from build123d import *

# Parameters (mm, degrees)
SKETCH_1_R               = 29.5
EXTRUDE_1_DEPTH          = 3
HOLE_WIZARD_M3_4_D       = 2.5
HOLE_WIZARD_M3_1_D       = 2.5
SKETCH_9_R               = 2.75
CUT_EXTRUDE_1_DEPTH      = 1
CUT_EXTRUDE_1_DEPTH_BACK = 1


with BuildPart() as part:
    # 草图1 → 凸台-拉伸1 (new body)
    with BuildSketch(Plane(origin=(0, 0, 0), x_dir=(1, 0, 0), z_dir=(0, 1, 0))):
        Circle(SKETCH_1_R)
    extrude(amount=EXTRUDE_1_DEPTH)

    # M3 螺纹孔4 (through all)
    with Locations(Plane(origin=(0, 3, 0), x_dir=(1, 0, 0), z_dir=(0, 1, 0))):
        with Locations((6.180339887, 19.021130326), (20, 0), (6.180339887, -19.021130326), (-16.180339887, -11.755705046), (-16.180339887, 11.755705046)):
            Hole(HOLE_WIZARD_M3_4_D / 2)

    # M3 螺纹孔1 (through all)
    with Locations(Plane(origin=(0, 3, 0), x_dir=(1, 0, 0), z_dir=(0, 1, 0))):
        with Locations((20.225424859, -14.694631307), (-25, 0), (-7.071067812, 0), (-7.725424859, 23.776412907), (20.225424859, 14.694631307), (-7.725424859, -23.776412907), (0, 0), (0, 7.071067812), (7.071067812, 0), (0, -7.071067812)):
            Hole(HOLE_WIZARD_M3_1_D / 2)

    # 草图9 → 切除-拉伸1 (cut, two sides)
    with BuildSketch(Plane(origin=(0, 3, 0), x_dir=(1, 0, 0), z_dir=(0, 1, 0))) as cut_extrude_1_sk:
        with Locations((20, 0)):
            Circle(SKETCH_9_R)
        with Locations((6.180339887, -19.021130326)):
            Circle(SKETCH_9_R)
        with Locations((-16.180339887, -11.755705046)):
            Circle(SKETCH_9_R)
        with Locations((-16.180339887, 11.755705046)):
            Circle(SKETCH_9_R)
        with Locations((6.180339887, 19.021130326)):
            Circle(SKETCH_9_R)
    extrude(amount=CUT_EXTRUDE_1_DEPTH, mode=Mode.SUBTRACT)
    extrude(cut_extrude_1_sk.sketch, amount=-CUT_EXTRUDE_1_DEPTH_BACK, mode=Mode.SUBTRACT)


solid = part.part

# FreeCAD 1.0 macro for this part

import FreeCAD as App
import Part
import Sketcher

doc = App.newDocument("Part")
body = doc.addObject("PartDesign::Body", "Body")

# Sketch on XZ plane
sketch1 = doc.addObject("Sketcher::SketchObject", "Sketch")
body.addObject(sketch1)
sketch1.AttachmentSupport = (doc.XZ_Plane, [""])
sketch1.MapMode = "FlatFace"
sketch1.addGeometry(Part.Circle(App.Vector(0, 0, 0), App.Vector(0, 0, 1), 30), False)
sketch1.addConstraint([
    Sketcher.Constraint("Coincident", 0, 3, -1, 1),
    Sketcher.Constraint("Diameter", 0, 59.0),
])
pad1 = doc.addObject("PartDesign::Pad", "Pad")
body.addObject(pad1)
pad1.Profile = sketch1
pad1.Length = 3
pad1.Reversed = True

# Sketch on XZ plane
sketch2 = doc.addObject("Sketcher::SketchObject", "Sketch001")
body.addObject(sketch2)
sketch2.AttachmentSupport = (doc.XZ_Plane, [""])
sketch2.MapMode = "FlatFace"
sketch2.AttachmentOffset = App.Placement(App.Vector(0, 0, -3), App.Rotation())
sketch2.addGeometry([
    Part.Circle(App.Vector(6.2, -19, 0), App.Vector(0, 0, 1), 1.2),  # 0
    Part.Circle(App.Vector(20, 0, 0), App.Vector(0, 0, 1), 1.2),  # 1
    Part.Circle(App.Vector(6.2, 19, 0), App.Vector(0, 0, 1), 1.2),  # 2
    Part.Circle(App.Vector(-16.2, 11.8, 0), App.Vector(0, 0, 1), 1.2),  # 3
    Part.Circle(App.Vector(-16.2, -11.8, 0), App.Vector(0, 0, 1), 1.2),  # 4
], False)
sketch2.addConstraint([
    Sketcher.Constraint("Equal", 0, 1),
    Sketcher.Constraint("Equal", 1, 2),
    Sketcher.Constraint("Equal", 2, 3),
    Sketcher.Constraint("Equal", 3, 4),
    Sketcher.Constraint("Symmetric", 0, 3, 2, 3, -1),
    Sketcher.Constraint("Symmetric", 3, 3, 4, 3, -1),
    Sketcher.Constraint("PointOnObject", 1, 3, -1),
    Sketcher.Constraint("Diameter", 0, 2.5),
    Sketcher.Constraint("DistanceX", -1, 1, 1, 3, 20.0),
    Sketcher.Constraint("DistanceX", -1, 1, 0, 3, 6.18034),
    Sketcher.Constraint("DistanceY", 0, 3, -1, 1, 19.02113),
    Sketcher.Constraint("DistanceX", 3, 3, -1, 1, 16.18034),
    Sketcher.Constraint("DistanceY", 4, 3, 3, 3, 23.51141),
])
doc.recompute()
hole = doc.addObject("PartDesign::Hole", "Hole")
body.addObject(hole)
hole.Profile = sketch2
hole.ThreadType = "None"
hole.Diameter = 2.5
hole.DepthType = "ThroughAll"
hole.Reversed = True

# Sketch on XZ plane
sketch3 = doc.addObject("Sketcher::SketchObject", "Sketch002")
body.addObject(sketch3)
sketch3.AttachmentSupport = (doc.XZ_Plane, [""])
sketch3.MapMode = "FlatFace"
sketch3.AttachmentOffset = App.Placement(App.Vector(0, 0, -3), App.Rotation())
sketch3.addGeometry([
    Part.Circle(App.Vector(20.2, 14.7, 0), App.Vector(0, 0, 1), 1.2),  # 0
    Part.Circle(App.Vector(-25, 0, 0), App.Vector(0, 0, 1), 1.2),  # 1
    Part.Circle(App.Vector(-7.1, 0, 0), App.Vector(0, 0, 1), 1.2),  # 2
    Part.Circle(App.Vector(-7.7, -23.8, 0), App.Vector(0, 0, 1), 1.2),  # 3
    Part.Circle(App.Vector(20.2, -14.7, 0), App.Vector(0, 0, 1), 1.2),  # 4
    Part.Circle(App.Vector(-7.7, 23.8, 0), App.Vector(0, 0, 1), 1.2),  # 5
    Part.Circle(App.Vector(0, 0, 0), App.Vector(0, 0, 1), 1.2),  # 6
    Part.Circle(App.Vector(0, -7.1, 0), App.Vector(0, 0, 1), 1.2),  # 7
    Part.Circle(App.Vector(7.1, 0, 0), App.Vector(0, 0, 1), 1.2),  # 8
    Part.Circle(App.Vector(0, 7.1, 0), App.Vector(0, 0, 1), 1.2),  # 9
], False)
sketch3.addConstraint([
    Sketcher.Constraint("Coincident", 6, 3, -1, 1),
    Sketcher.Constraint("Equal", 0, 1),
    Sketcher.Constraint("Equal", 1, 2),
    Sketcher.Constraint("Equal", 2, 3),
    Sketcher.Constraint("Equal", 3, 4),
    Sketcher.Constraint("Equal", 4, 5),
    Sketcher.Constraint("Equal", 5, 6),
    Sketcher.Constraint("Equal", 6, 7),
    Sketcher.Constraint("Equal", 7, 8),
    Sketcher.Constraint("Equal", 8, 9),
    Sketcher.Constraint("Symmetric", 2, 3, 8, 3, -1, 1),
    Sketcher.Constraint("Symmetric", 7, 3, 9, 3, -1, 1),
    Sketcher.Constraint("Symmetric", 0, 3, 4, 3, -1),
    Sketcher.Constraint("Symmetric", 3, 3, 5, 3, -1),
    Sketcher.Constraint("PointOnObject", 1, 3, -1),
    Sketcher.Constraint("PointOnObject", 2, 3, -1),
    Sketcher.Constraint("PointOnObject", 7, 3, -2),
    Sketcher.Constraint("Diameter", 0, 2.5),
    Sketcher.Constraint("DistanceX", 1, 3, -1, 1, 25.0),
    Sketcher.Constraint("DistanceY", -1, 1, 0, 3, 14.694631),
    Sketcher.Constraint("DistanceX", 3, 3, 0, 3, 27.95085),
    Sketcher.Constraint("DistanceY", 3, 3, 4, 3, 9.081782),
    Sketcher.Constraint("DistanceX", -1, 1, 0, 3, 20.225425),
    Sketcher.Constraint("DistanceX", 2, 3, -1, 1, 7.071068),
    Sketcher.Constraint("DistanceY", 7, 3, -1, 1, 7.071068),
])
doc.recompute()
hole2 = doc.addObject("PartDesign::Hole", "Hole001")
body.addObject(hole2)
hole2.Profile = sketch3
hole2.ThreadType = "None"
hole2.Diameter = 2.5
hole2.DepthType = "ThroughAll"
hole2.Reversed = True

# Sketch on XZ plane
sketch4 = doc.addObject("Sketcher::SketchObject", "Sketch003")
body.addObject(sketch4)
sketch4.AttachmentSupport = (doc.XZ_Plane, [""])
sketch4.MapMode = "FlatFace"
sketch4.AttachmentOffset = App.Placement(App.Vector(0, 0, -3), App.Rotation())
sketch4.addGeometry([
    Part.Circle(App.Vector(20, 0, 0), App.Vector(0, 0, 1), 2.8),  # 0
    Part.Circle(App.Vector(6.2, 19, 0), App.Vector(0, 0, 1), 2.8),  # 1
    Part.Circle(App.Vector(-16.2, 11.8, 0), App.Vector(0, 0, 1), 2.8),  # 2
    Part.Circle(App.Vector(-16.2, -11.8, 0), App.Vector(0, 0, 1), 2.8),  # 3
    Part.Circle(App.Vector(6.2, -19, 0), App.Vector(0, 0, 1), 2.8),  # 4
], False)
sketch4.addConstraint([
    Sketcher.Constraint("Equal", 0, 1),
    Sketcher.Constraint("Equal", 1, 2),
    Sketcher.Constraint("Equal", 2, 3),
    Sketcher.Constraint("Equal", 3, 4),
    Sketcher.Constraint("Symmetric", 2, 3, 3, 3, -1),
    Sketcher.Constraint("Symmetric", 1, 3, 4, 3, -1),
    Sketcher.Constraint("PointOnObject", 0, 3, -1),
    Sketcher.Constraint("Diameter", 0, 5.5),
    Sketcher.Constraint("DistanceX", -1, 1, 0, 3, 20.0),
    Sketcher.Constraint("DistanceX", -1, 1, 1, 3, 6.18034),
    Sketcher.Constraint("DistanceY", -1, 1, 1, 3, 19.02113),
    Sketcher.Constraint("DistanceX", 2, 3, -1, 1, 16.18034),
    Sketcher.Constraint("DistanceY", 3, 3, 2, 3, 23.51141),
])
pocket1 = doc.addObject("PartDesign::Pocket", "Pocket")
body.addObject(pocket1)
pocket1.Profile = sketch4
pocket1.Type = "TwoLengths"
pocket1.Length = 1
pocket1.Length2 = 1

doc.recompute()
